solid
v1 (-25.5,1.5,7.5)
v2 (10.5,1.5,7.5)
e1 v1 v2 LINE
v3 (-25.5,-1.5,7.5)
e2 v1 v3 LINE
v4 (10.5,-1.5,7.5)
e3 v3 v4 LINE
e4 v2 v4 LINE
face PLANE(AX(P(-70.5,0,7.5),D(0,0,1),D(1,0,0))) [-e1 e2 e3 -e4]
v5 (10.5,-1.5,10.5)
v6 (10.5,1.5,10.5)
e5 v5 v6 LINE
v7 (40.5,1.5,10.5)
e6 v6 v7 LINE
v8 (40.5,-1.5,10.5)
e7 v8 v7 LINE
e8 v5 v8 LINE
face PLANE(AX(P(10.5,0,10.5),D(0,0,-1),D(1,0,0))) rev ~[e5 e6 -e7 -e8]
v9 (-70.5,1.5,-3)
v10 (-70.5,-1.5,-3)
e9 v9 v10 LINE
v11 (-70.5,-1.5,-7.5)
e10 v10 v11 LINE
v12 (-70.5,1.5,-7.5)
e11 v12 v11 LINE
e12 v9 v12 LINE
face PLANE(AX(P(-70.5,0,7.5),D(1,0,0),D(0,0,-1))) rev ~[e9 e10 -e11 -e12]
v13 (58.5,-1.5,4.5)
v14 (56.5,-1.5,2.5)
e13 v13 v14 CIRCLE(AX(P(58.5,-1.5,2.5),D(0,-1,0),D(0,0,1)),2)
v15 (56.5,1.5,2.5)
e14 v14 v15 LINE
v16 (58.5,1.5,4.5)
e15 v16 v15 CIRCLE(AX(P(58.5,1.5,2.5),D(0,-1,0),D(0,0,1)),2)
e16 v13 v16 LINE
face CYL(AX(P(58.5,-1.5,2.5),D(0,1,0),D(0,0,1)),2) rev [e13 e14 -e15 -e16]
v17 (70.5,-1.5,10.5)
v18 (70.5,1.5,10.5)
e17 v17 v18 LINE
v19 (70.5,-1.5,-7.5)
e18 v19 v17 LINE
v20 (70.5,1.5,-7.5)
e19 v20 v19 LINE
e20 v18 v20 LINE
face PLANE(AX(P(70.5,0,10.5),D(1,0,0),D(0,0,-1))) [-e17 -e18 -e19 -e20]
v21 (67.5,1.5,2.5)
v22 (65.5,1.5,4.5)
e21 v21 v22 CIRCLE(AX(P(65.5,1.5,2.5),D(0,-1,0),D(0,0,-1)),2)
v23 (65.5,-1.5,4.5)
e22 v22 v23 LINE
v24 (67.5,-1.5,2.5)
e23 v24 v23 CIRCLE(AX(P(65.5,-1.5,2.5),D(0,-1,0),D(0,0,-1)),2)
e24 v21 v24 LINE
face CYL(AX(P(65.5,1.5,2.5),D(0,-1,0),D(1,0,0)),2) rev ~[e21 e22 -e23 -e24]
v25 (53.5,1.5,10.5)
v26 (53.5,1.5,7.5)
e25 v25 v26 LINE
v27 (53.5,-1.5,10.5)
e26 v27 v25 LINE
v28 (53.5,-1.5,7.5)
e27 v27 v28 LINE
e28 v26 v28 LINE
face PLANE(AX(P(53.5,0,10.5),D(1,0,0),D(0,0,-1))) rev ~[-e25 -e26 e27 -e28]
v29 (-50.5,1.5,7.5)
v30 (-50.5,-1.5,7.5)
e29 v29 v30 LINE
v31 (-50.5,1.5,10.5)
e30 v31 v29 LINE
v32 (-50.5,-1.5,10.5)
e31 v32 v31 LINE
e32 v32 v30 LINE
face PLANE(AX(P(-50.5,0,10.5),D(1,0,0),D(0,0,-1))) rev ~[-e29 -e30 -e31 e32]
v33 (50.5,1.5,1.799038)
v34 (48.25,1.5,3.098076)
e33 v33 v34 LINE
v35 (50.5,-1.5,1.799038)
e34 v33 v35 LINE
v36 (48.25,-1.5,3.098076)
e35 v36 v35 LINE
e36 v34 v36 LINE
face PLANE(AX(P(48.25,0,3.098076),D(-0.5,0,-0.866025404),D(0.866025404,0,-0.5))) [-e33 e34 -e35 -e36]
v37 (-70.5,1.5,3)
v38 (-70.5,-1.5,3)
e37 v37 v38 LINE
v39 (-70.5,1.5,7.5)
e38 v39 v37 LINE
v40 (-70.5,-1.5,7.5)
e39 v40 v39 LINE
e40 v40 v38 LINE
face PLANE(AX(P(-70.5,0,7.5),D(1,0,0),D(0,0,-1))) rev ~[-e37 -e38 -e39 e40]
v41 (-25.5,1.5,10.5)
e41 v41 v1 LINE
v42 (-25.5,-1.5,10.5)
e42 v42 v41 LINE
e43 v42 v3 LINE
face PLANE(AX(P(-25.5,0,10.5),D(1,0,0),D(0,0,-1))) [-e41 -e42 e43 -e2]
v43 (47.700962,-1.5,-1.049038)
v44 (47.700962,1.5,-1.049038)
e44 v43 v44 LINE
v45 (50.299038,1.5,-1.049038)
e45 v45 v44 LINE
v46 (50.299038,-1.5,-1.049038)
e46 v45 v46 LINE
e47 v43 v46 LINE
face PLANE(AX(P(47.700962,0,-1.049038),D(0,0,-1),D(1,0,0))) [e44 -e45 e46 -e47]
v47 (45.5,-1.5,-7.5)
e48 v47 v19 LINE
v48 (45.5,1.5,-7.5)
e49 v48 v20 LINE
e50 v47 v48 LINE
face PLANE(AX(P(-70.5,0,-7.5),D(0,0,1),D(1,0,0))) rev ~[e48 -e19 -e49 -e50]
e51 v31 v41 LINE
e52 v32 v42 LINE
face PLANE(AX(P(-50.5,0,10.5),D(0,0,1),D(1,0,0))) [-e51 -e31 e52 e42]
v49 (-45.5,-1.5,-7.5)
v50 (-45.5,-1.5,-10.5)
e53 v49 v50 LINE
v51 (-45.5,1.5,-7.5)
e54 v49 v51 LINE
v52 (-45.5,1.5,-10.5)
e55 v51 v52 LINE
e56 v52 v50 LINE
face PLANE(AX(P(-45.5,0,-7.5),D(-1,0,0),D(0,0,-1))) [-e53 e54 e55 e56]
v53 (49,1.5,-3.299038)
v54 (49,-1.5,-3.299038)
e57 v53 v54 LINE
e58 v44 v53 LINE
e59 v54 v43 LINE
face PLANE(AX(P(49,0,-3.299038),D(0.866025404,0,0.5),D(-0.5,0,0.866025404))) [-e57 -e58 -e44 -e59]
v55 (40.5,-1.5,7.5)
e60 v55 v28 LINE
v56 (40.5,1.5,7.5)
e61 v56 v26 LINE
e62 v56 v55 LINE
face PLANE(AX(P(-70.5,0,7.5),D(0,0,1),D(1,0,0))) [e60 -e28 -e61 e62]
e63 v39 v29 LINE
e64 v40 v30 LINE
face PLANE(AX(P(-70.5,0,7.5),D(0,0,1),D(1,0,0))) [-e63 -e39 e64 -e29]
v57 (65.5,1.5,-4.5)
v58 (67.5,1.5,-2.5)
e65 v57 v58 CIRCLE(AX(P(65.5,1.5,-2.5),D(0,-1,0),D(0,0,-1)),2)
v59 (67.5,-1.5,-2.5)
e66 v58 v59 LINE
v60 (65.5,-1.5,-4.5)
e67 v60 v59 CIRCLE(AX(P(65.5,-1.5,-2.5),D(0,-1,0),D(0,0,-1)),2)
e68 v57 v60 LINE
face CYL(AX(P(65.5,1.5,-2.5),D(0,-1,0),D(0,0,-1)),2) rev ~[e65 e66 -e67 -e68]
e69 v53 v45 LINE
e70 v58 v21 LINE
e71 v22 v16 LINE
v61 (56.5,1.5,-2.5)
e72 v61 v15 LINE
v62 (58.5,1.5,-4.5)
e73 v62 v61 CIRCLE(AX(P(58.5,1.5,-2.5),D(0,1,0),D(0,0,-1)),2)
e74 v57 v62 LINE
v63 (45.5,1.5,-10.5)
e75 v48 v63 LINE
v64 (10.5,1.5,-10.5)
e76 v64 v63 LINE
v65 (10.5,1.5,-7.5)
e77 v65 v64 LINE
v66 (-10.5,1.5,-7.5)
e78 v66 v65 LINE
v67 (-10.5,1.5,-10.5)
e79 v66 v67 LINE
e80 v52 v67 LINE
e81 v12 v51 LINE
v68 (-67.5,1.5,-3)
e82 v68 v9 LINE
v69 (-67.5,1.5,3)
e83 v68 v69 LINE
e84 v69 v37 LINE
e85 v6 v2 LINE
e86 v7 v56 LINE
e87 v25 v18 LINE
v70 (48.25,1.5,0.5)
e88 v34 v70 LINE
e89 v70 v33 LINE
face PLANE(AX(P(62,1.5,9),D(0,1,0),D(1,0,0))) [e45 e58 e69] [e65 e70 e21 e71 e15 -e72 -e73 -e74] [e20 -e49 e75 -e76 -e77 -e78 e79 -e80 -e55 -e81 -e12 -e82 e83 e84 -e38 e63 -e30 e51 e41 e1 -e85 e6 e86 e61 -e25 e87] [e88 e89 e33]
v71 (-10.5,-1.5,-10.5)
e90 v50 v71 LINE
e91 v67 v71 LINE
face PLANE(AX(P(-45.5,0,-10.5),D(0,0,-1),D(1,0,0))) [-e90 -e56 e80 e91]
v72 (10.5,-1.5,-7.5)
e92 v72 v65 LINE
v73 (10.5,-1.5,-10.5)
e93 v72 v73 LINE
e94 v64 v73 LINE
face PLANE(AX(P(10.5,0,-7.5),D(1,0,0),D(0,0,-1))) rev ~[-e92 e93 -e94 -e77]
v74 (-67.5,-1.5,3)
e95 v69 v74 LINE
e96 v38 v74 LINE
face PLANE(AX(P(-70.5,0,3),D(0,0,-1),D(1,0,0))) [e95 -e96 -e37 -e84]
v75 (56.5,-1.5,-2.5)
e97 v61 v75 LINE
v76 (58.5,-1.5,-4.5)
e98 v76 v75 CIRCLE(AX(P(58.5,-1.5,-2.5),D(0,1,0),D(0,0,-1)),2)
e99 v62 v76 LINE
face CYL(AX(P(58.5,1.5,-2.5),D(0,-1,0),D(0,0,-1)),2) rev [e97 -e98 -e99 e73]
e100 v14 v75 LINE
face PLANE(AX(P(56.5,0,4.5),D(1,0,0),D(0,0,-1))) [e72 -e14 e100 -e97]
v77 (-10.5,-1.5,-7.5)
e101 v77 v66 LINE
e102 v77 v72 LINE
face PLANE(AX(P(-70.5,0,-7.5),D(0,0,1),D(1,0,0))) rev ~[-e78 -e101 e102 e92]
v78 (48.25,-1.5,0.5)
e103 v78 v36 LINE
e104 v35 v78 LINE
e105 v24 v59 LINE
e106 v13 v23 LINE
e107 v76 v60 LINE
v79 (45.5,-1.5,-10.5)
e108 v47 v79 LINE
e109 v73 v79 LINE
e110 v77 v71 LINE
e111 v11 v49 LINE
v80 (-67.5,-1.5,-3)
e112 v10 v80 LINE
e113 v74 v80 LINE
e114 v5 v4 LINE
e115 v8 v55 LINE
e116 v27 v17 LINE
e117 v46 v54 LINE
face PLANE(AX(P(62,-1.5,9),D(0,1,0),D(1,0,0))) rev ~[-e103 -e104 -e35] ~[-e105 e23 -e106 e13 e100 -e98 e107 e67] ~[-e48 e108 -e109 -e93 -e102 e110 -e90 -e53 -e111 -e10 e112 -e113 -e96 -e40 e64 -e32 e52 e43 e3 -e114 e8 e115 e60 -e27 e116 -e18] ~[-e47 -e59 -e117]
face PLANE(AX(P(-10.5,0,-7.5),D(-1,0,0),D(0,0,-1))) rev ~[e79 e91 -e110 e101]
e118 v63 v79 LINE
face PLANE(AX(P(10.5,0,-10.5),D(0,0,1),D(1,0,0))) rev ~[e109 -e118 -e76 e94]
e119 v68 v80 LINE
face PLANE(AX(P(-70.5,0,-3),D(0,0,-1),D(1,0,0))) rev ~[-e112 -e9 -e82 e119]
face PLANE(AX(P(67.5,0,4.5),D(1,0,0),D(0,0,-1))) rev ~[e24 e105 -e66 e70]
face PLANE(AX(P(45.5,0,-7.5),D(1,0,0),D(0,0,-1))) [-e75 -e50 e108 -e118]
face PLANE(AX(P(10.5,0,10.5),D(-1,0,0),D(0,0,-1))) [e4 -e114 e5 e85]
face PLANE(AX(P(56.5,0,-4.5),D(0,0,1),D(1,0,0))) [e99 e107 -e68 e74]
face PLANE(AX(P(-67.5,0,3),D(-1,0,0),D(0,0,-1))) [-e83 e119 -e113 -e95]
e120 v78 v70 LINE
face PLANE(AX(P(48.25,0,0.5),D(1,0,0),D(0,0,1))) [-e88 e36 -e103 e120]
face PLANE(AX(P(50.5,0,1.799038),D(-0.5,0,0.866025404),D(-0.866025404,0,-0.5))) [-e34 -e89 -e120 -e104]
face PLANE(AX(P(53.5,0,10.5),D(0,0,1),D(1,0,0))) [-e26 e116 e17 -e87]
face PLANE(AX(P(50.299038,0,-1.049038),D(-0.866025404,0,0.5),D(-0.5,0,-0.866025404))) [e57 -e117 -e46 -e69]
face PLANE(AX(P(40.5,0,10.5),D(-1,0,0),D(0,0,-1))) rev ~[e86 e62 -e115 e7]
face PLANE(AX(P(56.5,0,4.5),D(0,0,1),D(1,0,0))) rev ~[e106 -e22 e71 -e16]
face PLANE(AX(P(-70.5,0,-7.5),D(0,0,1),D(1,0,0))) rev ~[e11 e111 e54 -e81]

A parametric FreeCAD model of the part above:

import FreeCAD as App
import Part
import Sketcher

V = App.Vector
Q = App.Units.Quantity


def edges_at(feature, points):
    """Names of the edges that pass closest to the given points."""
    edges = feature.Shape.Edges
    near = lambda p: min(range(len(edges)), key=lambda i: edges[i].distToShape(Part.Vertex(*p))[0])
    return sorted({f"Edge{near(p) + 1}" for p in points})

doc = App.newDocument("Part")
body = doc.addObject("PartDesign::Body", "Body")

# Sketch on XZ plane
sketch1 = body.newObject("Sketcher::SketchObject", "Sketch")
sketch1.AttachmentSupport = (doc.getObject("XZ_Plane"), [""])
sketch1.MapMode = "FlatFace"
sketch1.addGeometry(Part.LineSegment(V(-70, -8, 0), V(-70, 8, 0)), False)
sketch1.addGeometry(Part.LineSegment(V(-70, 8, 0), V(70, 8, 0)), False)
sketch1.addGeometry(Part.LineSegment(V(70, 8, 0), V(70, -8, 0)), False)
sketch1.addGeometry(Part.LineSegment(V(70, -8, 0), V(-70, -8, 0)), False)
sketch1.addConstraint(Sketcher.Constraint("Coincident", 0, 2, 1, 1))
sketch1.addConstraint(Sketcher.Constraint("Coincident", 1, 2, 2, 1))
sketch1.addConstraint(Sketcher.Constraint("Coincident", 2, 2, 3, 1))
sketch1.addConstraint(Sketcher.Constraint("Coincident", 3, 2, 0, 1))
sketch1.addConstraint(Sketcher.Constraint("Vertical", 0))
sketch1.addConstraint(Sketcher.Constraint("Horizontal", 1))
sketch1.addConstraint(Sketcher.Constraint("Vertical", 2))
sketch1.addConstraint(Sketcher.Constraint("Horizontal", 3))
sketch1.addConstraint(Sketcher.Constraint("Symmetric", 0, 2, 2, 2, -1, 1))
sketch1.addConstraint(Sketcher.Constraint("DistanceX", 1, 1, 1, 2, 141.0))
sketch1.addConstraint(Sketcher.Constraint("DistanceY", 0, 1, 0, 2, 15.0))
pad1 = body.newObject("PartDesign::Pad", "Pad")
pad1.Profile = sketch1
pad1.Length = 3
pad1.Midplane = True

# Sketch on XZ plane
sketch2 = body.newObject("Sketcher::SketchObject", "Sketch001")
sketch2.AttachmentSupport = (doc.getObject("XZ_Plane"), [""])
sketch2.MapMode = "FlatFace"
sketch2.addGeometry(Part.LineSegment(V(10.5, 7.5, 0), V(10.5, 10.5, 0)), False)
sketch2.addGeometry(Part.LineSegment(V(10.5, 10.5, 0), V(40.5, 10.5, 0)), False)
sketch2.addGeometry(Part.LineSegment(V(40.5, 10.5, 0), V(40.5, 7.5, 0)), False)
sketch2.addGeometry(Part.LineSegment(V(40.5, 7.5, 0), V(10.5, 7.5, 0)), False)
sketch2.addGeometry(Part.LineSegment(V(53.5, 7.5, 0), V(53.5, 10.5, 0)), False)
sketch2.addGeometry(Part.LineSegment(V(53.5, 10.5, 0), V(70.5, 10.5, 0)), False)
sketch2.addGeometry(Part.LineSegment(V(70.5, 10.5, 0), V(70.5, 7.5, 0)), False)
sketch2.addGeometry(Part.LineSegment(V(70.5, 7.5, 0), V(53.5, 7.5, 0)), False)
sketch2.addConstraint(Sketcher.Constraint("Coincident", 0, 2, 1, 1))
sketch2.addConstraint(Sketcher.Constraint("Coincident", 1, 2, 2, 1))
sketch2.addConstraint(Sketcher.Constraint("Coincident", 2, 2, 3, 1))
sketch2.addConstraint(Sketcher.Constraint("Coincident", 3, 2, 0, 1))
sketch2.addConstraint(Sketcher.Constraint("Coincident", 4, 2, 5, 1))
sketch2.addConstraint(Sketcher.Constraint("Coincident", 5, 2, 6, 1))
sketch2.addConstraint(Sketcher.Constraint("Coincident", 6, 2, 7, 1))
sketch2.addConstraint(Sketcher.Constraint("Coincident", 7, 2, 4, 1))
sketch2.addConstraint(Sketcher.Constraint("Vertical", 0))
sketch2.addConstraint(Sketcher.Constraint("Horizontal", 1))
sketch2.addConstraint(Sketcher.Constraint("Vertical", 2))
sketch2.addConstraint(Sketcher.Constraint("Horizontal", 3))
sketch2.addConstraint(Sketcher.Constraint("Vertical", 4))
sketch2.addConstraint(Sketcher.Constraint("Horizontal", 5))
sketch2.addConstraint(Sketcher.Constraint("Vertical", 6))
sketch2.addConstraint(Sketcher.Constraint("Horizontal", 7))
sketch2.addConstraint(Sketcher.Constraint("Horizontal", 1, 2, 4, 2))
sketch2.addConstraint(Sketcher.Constraint("Horizontal", 3, 2, 6, 2))
sketch2.addConstraint(Sketcher.Constraint("DistanceX", 1, 1, 1, 2, 30.0))
sketch2.addConstraint(Sketcher.Constraint("DistanceX", 5, 1, 5, 2, 17.0))
sketch2.addConstraint(Sketcher.Constraint("DistanceY", 0, 1, 0, 2, 3.0))
sketch2.addConstraint(Sketcher.Constraint("DistanceX", 1, 2, 4, 2, 13.0))
sketch2.addConstraint(Sketcher.Constraint("DistanceX", -1, 1, 0, 2, 10.5))
sketch2.addConstraint(Sketcher.Constraint("DistanceY", -1, 1, 0, 2, 10.5))
pad2 = body.newObject("PartDesign::Pad", "Pad001")
pad2.Profile = sketch2
pad2.Length = 3
pad2.Midplane = True

# Sketch on XZ plane
sketch3 = body.newObject("Sketcher::SketchObject", "Sketch002")
sketch3.AttachmentSupport = (doc.getObject("XZ_Plane"), [""])
sketch3.MapMode = "FlatFace"
sketch3.addGeometry(Part.LineSegment(V(-50.5, 7.5, 0), V(-50.5, 10.5, 0)), False)
sketch3.addGeometry(Part.LineSegment(V(-50.5, 10.5, 0), V(-25.5, 10.5, 0)), False)
sketch3.addGeometry(Part.LineSegment(V(-25.5, 10.5, 0), V(-25.5, 7.5, 0)), False)
sketch3.addGeometry(Part.LineSegment(V(-25.5, 7.5, 0), V(-50.5, 7.5, 0)), False)
sketch3.addConstraint(Sketcher.Constraint("Coincident", 0, 2, 1, 1))
sketch3.addConstraint(Sketcher.Constraint("Coincident", 1, 2, 2, 1))
sketch3.addConstraint(Sketcher.Constraint("Coincident", 2, 2, 3, 1))
sketch3.addConstraint(Sketcher.Constraint("Coincident", 3, 2, 0, 1))
sketch3.addConstraint(Sketcher.Constraint("Vertical", 0))
sketch3.addConstraint(Sketcher.Constraint("Horizontal", 1))
sketch3.addConstraint(Sketcher.Constraint("Vertical", 2))
sketch3.addConstraint(Sketcher.Constraint("Horizontal", 3))
sketch3.addConstraint(Sketcher.Constraint("DistanceX", 1, 1, 1, 2, 25.0))
sketch3.addConstraint(Sketcher.Constraint("DistanceY", 0, 1, 0, 2, 3.0))
sketch3.addConstraint(Sketcher.Constraint("DistanceX", 0, 2, -1, 1, 50.5))
sketch3.addConstraint(Sketcher.Constraint("DistanceY", -1, 1, 0, 2, 10.5))
pad3 = body.newObject("PartDesign::Pad", "Pad002")
pad3.Profile = sketch3
pad3.Length = 3
pad3.Midplane = True

# Sketch on XZ plane
sketch4 = body.newObject("Sketcher::SketchObject", "Sketch003")
sketch4.AttachmentSupport = (doc.getObject("XZ_Plane"), [""])
sketch4.MapMode = "FlatFace"
sketch4.addGeometry(Part.LineSegment(V(-45.5, -10.5, 0), V(-45.5, -7.5, 0)), False)
sketch4.addGeometry(Part.LineSegment(V(-45.5, -7.5, 0), V(-10.5, -7.5, 0)), False)
sketch4.addGeometry(Part.LineSegment(V(-10.5, -7.5, 0), V(-10.5, -10.5, 0)), False)
sketch4.addGeometry(Part.LineSegment(V(-10.5, -10.5, 0), V(-45.5, -10.5, 0)), False)
sketch4.addGeometry(Part.LineSegment(V(10.5, -10.5, 0), V(10.5, -7.5, 0)), False)
sketch4.addGeometry(Part.LineSegment(V(10.5, -7.5, 0), V(45.5, -7.5, 0)), False)
sketch4.addGeometry(Part.LineSegment(V(45.5, -7.5, 0), V(45.5, -10.5, 0)), False)
sketch4.addGeometry(Part.LineSegment(V(45.5, -10.5, 0), V(10.5, -10.5, 0)), False)
sketch4.addConstraint(Sketcher.Constraint("Coincident", 0, 2, 1, 1))
sketch4.addConstraint(Sketcher.Constraint("Coincident", 1, 2, 2, 1))
sketch4.addConstraint(Sketcher.Constraint("Coincident", 2, 2, 3, 1))
sketch4.addConstraint(Sketcher.Constraint("Coincident", 3, 2, 0, 1))
sketch4.addConstraint(Sketcher.Constraint("Coincident", 4, 2, 5, 1))
sketch4.addConstraint(Sketcher.Constraint("Coincident", 5, 2, 6, 1))
sketch4.addConstraint(Sketcher.Constraint("Coincident", 6, 2, 7, 1))
sketch4.addConstraint(Sketcher.Constraint("Coincident", 7, 2, 4, 1))
sketch4.addConstraint(Sketcher.Constraint("Vertical", 0))
sketch4.addConstraint(Sketcher.Constraint("Horizontal", 1))
sketch4.addConstraint(Sketcher.Constraint("Vertical", 2))
sketch4.addConstraint(Sketcher.Constraint("Horizontal", 3))
sketch4.addConstraint(Sketcher.Constraint("Vertical", 4))
sketch4.addConstraint(Sketcher.Constraint("Horizontal", 5))
sketch4.addConstraint(Sketcher.Constraint("Vertical", 6))
sketch4.addConstraint(Sketcher.Constraint("Horizontal", 7))
sketch4.addConstraint(Sketcher.Constraint("Symmetric", 1, 2, 4, 2, -2))
sketch4.addConstraint(Sketcher.Constraint("Symmetric", 3, 2, 6, 2, -2))
sketch4.addConstraint(Sketcher.Constraint("DistanceX", 1, 1, 1, 2, 35.0))
sketch4.addConstraint(Sketcher.Constraint("DistanceY", 0, 1, 0, 2, 3.0))
sketch4.addConstraint(Sketcher.Constraint("DistanceX", 1, 2, 4, 2, 21.0))
sketch4.addConstraint(Sketcher.Constraint("DistanceY", 0, 2, -1, 1, 7.5))
pad4 = body.newObject("PartDesign::Pad", "Pad003")
pad4.Profile = sketch4
pad4.Length = 3
pad4.Midplane = True

# Sketch on XZ plane
sketch5 = body.newObject("Sketcher::SketchObject", "Sketch004")
sketch5.AttachmentSupport = (doc.getObject("XZ_Plane"), [""])
sketch5.MapMode = "FlatFace"
sketch5.addGeometry(Part.LineSegment(V(56, -4, 0), V(56, 4, 0)), False)
sketch5.addGeometry(Part.LineSegment(V(56, 4, 0), V(68, 4, 0)), False)
sketch5.addGeometry(Part.LineSegment(V(68, 4, 0), V(68, -4, 0)), False)
sketch5.addGeometry(Part.LineSegment(V(68, -4, 0), V(56, -4, 0)), False)
sketch5.addConstraint(Sketcher.Constraint("Coincident", 0, 2, 1, 1))
sketch5.addConstraint(Sketcher.Constraint("Coincident", 1, 2, 2, 1))
sketch5.addConstraint(Sketcher.Constraint("Coincident", 2, 2, 3, 1))
sketch5.addConstraint(Sketcher.Constraint("Coincident", 3, 2, 0, 1))
sketch5.addConstraint(Sketcher.Constraint("Vertical", 0))
sketch5.addConstraint(Sketcher.Constraint("Horizontal", 1))
sketch5.addConstraint(Sketcher.Constraint("Vertical", 2))
sketch5.addConstraint(Sketcher.Constraint("Horizontal", 3))
sketch5.addConstraint(Sketcher.Constraint("DistanceX", 1, 1, 1, 2, 11.0))
sketch5.addConstraint(Sketcher.Constraint("DistanceY", 0, 1, 0, 2, 9.0))
sketch5.addConstraint(Sketcher.Constraint("DistanceX", -1, 1, 0, 2, 56.5))
sketch5.addConstraint(Sketcher.Constraint("DistanceY", -1, 1, 0, 2, 4.5))
pocket1 = body.newObject("PartDesign::Pocket", "Pocket")
pocket1.Profile = sketch5
pocket1.Type = "ThroughAll"
pocket1.Midplane = True
doc.recompute()

fillet = body.newObject("PartDesign::Fillet", "Fillet")
fillet.Base = (pocket1, edges_at(pocket1, [
    (56.5, 0, 4.5),
    (56.5, 0, -4.5),
    (67.5, 0, -4.5),
    (67.5, 0, 4.5),
]))
fillet.Radius = 2

# Sketch on XZ plane
sketch6 = body.newObject("Sketcher::SketchObject", "Sketch005")
sketch6.AttachmentSupport = (doc.getObject("XZ_Plane"), [""])
sketch6.MapMode = "FlatFace"
sketch6.addGeometry(Part.LineSegment(V(49, -3.3, 0), V(47.7, -1, 0)), False)
sketch6.addGeometry(Part.LineSegment(V(47.7, -1, 0), V(50.3, -1, 0)), False)
sketch6.addGeometry(Part.LineSegment(V(50.3, -1, 0), V(49, -3.3, 0)), False)
sketch6.addGeometry(Part.LineSegment(V(50.5, 1.8, 0), V(48.2, 0.5, 0)), False)
sketch6.addGeometry(Part.LineSegment(V(48.2, 0.5, 0), V(48.2, 3.1, 0)), False)
sketch6.addGeometry(Part.LineSegment(V(48.2, 3.1, 0), V(50.5, 1.8, 0)), False)
sketch6.addConstraint(Sketcher.Constraint("Coincident", 0, 2, 1, 1))
sketch6.addConstraint(Sketcher.Constraint("Coincident", 1, 2, 2, 1))
sketch6.addConstraint(Sketcher.Constraint("Coincident", 2, 2, 0, 1))
sketch6.addConstraint(Sketcher.Constraint("Coincident", 3, 2, 4, 1))
sketch6.addConstraint(Sketcher.Constraint("Coincident", 4, 2, 5, 1))
sketch6.addConstraint(Sketcher.Constraint("Coincident", 5, 2, 3, 1))
sketch6.addConstraint(Sketcher.Constraint("Horizontal", 1))
sketch6.addConstraint(Sketcher.Constraint("Vertical", 4))
sketch6.addConstraint(Sketcher.Constraint("Perpendicular", 0, 3))
sketch6.addConstraint(Sketcher.Constraint("Perpendicular", 2, 5))
sketch6.addConstraint(Sketcher.Constraint("Equal", 1, 4))
sketch6.addConstraint(Sketcher.Constraint("Equal", 0, 2))
sketch6.addConstraint(Sketcher.Constraint("Angle", 0, Q("120 deg")))
sketch6.addConstraint(Sketcher.Constraint("DistanceX", -1, 1, 2, 2, 49.0))
sketch6.addConstraint(Sketcher.Constraint("DistanceY", -1, 1, 3, 2, 0.5))
sketch6.addConstraint(Sketcher.Constraint("DistanceX", -1, 1, 5, 2, 50.5))
sketch6.addConstraint(Sketcher.Constraint("DistanceX", -1, 1, 3, 2, 48.25))
sketch6.addConstraint(Sketcher.Constraint("DistanceY", 0, 2, -1, 1, 1.049038))
pocket2 = body.newObject("PartDesign::Pocket", "Pocket001")
pocket2.Profile = sketch6
pocket2.Type = "ThroughAll"
pocket2.Midplane = True

# Sketch on XZ plane
sketch7 = body.newObject("Sketcher::SketchObject", "Sketch006")
sketch7.AttachmentSupport = (doc.getObject("XZ_Plane"), [""])
sketch7.MapMode = "FlatFace"
sketch7.addGeometry(Part.LineSegment(V(-70.5, -3, 0), V(-70.5, 3, 0)), False)
sketch7.addGeometry(Part.LineSegment(V(-70.5, 3, 0), V(-67.5, 3, 0)), False)
sketch7.addGeometry(Part.LineSegment(V(-67.5, 3, 0), V(-67.5, -3, 0)), False)
sketch7.addGeometry(Part.LineSegment(V(-67.5, -3, 0), V(-70.5, -3, 0)), False)
sketch7.addConstraint(Sketcher.Constraint("Coincident", 0, 2, 1, 1))
sketch7.addConstraint(Sketcher.Constraint("Coincident", 1, 2, 2, 1))
sketch7.addConstraint(Sketcher.Constraint("Coincident", 2, 2, 3, 1))
sketch7.addConstraint(Sketcher.Constraint("Coincident", 3, 2, 0, 1))
sketch7.addConstraint(Sketcher.Constraint("Vertical", 0))
sketch7.addConstraint(Sketcher.Constraint("Horizontal", 1))
sketch7.addConstraint(Sketcher.Constraint("Vertical", 2))
sketch7.addConstraint(Sketcher.Constraint("Horizontal", 3))
sketch7.addConstraint(Sketcher.Constraint("DistanceX", 1, 1, 1, 2, 3.0))
sketch7.addConstraint(Sketcher.Constraint("DistanceY", 0, 1, 0, 2, 6.0))
sketch7.addConstraint(Sketcher.Constraint("DistanceY", -1, 1, 0, 2, 3.0))
sketch7.addConstraint(Sketcher.Constraint("DistanceX", 0, 2, -1, 1, 70.5))
pocket3 = body.newObject("PartDesign::Pocket", "Pocket002")
pocket3.Profile = sketch7
pocket3.Type = "ThroughAll"
pocket3.Midplane = True

doc.recompute()
